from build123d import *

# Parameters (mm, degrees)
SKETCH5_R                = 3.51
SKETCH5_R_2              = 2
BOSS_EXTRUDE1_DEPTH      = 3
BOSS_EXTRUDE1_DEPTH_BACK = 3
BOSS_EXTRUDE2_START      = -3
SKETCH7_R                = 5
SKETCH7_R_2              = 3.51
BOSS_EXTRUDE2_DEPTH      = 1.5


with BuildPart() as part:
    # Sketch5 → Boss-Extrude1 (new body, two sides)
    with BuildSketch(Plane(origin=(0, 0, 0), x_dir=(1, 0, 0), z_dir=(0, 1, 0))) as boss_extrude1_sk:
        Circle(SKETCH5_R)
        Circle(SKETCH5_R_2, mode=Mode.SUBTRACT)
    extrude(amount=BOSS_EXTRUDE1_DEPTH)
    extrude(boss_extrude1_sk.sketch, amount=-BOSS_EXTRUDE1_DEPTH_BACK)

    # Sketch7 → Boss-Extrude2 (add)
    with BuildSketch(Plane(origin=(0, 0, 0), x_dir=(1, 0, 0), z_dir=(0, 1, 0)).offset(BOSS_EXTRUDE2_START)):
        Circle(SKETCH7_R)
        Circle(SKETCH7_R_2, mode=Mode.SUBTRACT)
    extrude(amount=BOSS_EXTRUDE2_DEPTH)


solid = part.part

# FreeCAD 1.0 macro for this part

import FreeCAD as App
import Part
import Sketcher
from FreeCAD import Vector

doc = App.newDocument("Part")
params = doc.addObject("Spreadsheet::Sheet", "Params")
for row, (alias, value) in enumerate([
    ("sketch1_diameter", "4 mm"),
    ("sketch1_diameter2", "7.02 mm"),
    ("pad1_length", "3 mm"),
    ("pad1_length2", "3 mm"),
    ("sketch2_diameter", "10 mm"),
    ("sketch2_diameter2", "7.02 mm"),
    ("pad2_length", "1.5 mm"),
], start=1):
    params.set(f"A{row}", alias)
    params.set(f"B{row}", "=" + value)
    params.setAlias(f"B{row}", alias)

body = doc.addObject("PartDesign::Body", "Body")

# Sketch on XZ plane
sketch1 = body.newObject("Sketcher::SketchObject", "Sketch")
sketch1.AttachmentSupport = (doc.getObject("XZ_Plane"), [""])
sketch1.MapMode = "FlatFace"
sketch1.addGeometry([
    Part.Circle(Vector(0, 0, 0), Vector(0, 0, 1), 3.51),
    Part.Circle(Vector(0, 0, 0), Vector(0, 0, 1), 2),
], False)
sketch1.addConstraint([
    Sketcher.Constraint("Coincident", 0, 3, -1, 1),
    Sketcher.Constraint("Coincident", 1, 3, -1, 1),
    Sketcher.Constraint("Diameter", 1, 4.0),
    Sketcher.Constraint("Diameter", 0, 7.02),
])
sketch1.setExpression("Constraints[2]", "Params.sketch1_diameter")
sketch1.setExpression("Constraints[3]", "Params.sketch1_diameter2")
pad1 = body.newObject("PartDesign::Pad", "Pad")
pad1.Profile = sketch1
pad1.Type = "TwoLengths"
pad1.setExpression("Length", "Params.pad1_length")
pad1.setExpression("Length2", "Params.pad1_length2")
pad1.Reversed = True

# Sketch on XZ plane
sketch2 = body.newObject("Sketcher::SketchObject", "Sketch001")
sketch2.AttachmentSupport = (doc.getObject("XZ_Plane"), [""])
sketch2.MapMode = "FlatFace"
sketch2.AttachmentOffset = App.Placement(Vector(0, 0, 3), App.Rotation())
sketch2.addGeometry([
    Part.Circle(Vector(0, 0, 0), Vector(0, 0, 1), 5),
    Part.Circle(Vector(0, 0, 0), Vector(0, 0, 1), 3.51),
], False)
sketch2.addConstraint([
    Sketcher.Constraint("Coincident", 0, 3, -1, 1),
    Sketcher.Constraint("Coincident", 1, 3, -1, 1),
    Sketcher.Constraint("Diameter", 0, 10.0),
    Sketcher.Constraint("Diameter", 1, 7.02),
])
sketch2.setExpression("Constraints[2]", "Params.sketch2_diameter")
sketch2.setExpression("Constraints[3]", "Params.sketch2_diameter2")
pad2 = body.newObject("PartDesign::Pad", "Pad001")
pad2.Profile = sketch2
pad2.setExpression("Length", "Params.pad2_length")
pad2.Reversed = True

doc.recompute()
